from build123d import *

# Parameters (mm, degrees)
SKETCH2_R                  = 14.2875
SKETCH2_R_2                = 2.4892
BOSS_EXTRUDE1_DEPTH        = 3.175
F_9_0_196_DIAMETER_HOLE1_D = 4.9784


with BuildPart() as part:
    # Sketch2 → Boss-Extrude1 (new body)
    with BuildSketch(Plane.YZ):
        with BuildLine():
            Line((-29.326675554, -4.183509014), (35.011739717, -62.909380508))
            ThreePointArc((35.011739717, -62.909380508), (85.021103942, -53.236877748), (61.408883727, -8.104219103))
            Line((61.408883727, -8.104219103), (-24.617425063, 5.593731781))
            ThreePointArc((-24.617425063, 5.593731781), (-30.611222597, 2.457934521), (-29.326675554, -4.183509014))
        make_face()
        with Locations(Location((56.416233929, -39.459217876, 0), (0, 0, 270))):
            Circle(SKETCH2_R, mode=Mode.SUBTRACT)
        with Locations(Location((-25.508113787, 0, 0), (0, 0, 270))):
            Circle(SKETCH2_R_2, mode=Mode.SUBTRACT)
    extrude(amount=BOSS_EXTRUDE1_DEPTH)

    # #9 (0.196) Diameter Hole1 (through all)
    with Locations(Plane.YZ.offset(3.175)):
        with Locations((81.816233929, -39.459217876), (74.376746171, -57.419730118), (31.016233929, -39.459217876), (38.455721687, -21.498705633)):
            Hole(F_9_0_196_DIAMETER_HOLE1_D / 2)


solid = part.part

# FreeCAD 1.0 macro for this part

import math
import FreeCAD as App
import Part
import Sketcher

V = App.Vector
Q = App.Units.Quantity

doc = App.newDocument("Part")
params = doc.addObject("Spreadsheet::Sheet", "Params")
for row, (alias, value) in enumerate([
    ("sketch1_radius", "1.25 in"),
    ("sketch1_diameter", "1.125 in"),
    ("sketch1_diameter2", "0.196 in"),
    ("sketch1_radius2", "0.223 in"),
    ("pad1_length", "0.125 in"),
    ("sketch2_diameter", "0.196 in"),
    ("hole_diameter", "0.196 in"),
], start=1):
    params.set(f"A{row}", alias)
    params.set(f"B{row}", "=" + value)
    params.setAlias(f"B{row}", alias)

body = doc.addObject("PartDesign::Body", "Body")

sketch1 = doc.addObject("Sketcher::SketchObject", "Sketch")
body.addObject(sketch1)
sketch1.AttachmentSupport = (doc.YZ_Plane, [""])
sketch1.MapMode = "FlatFace"
sketch1.addGeometry([
    Part.LineSegment(V(-29.3, -4.2, 0), V(35, -62.9, 0)),
    Part.ArcOfCircle(Part.Circle(V(56.4, -39.5, 0), V(0, 0, 1), 31.8), math.radians(-132), math.radians(81)),
    Part.LineSegment(V(61.4, -8.1, 0), V(-24.6, 5.6, 0)),
    Part.ArcOfCircle(Part.Circle(V(-25.5, 0, 0), V(0, 0, 1), 5.7), math.radians(81), math.radians(228)),
    Part.Circle(V(56.4, -39.5, 0), V(0, 0, 1), 14.3),
    Part.Circle(V(-25.5, 0, 0), V(0, 0, 1), 2.5),
], False)
sketch1.addConstraint([
    Sketcher.Constraint("Tangent", 0, 2, 1, 1),
    Sketcher.Constraint("Tangent", 1, 2, 2, 1),
    Sketcher.Constraint("Tangent", 2, 2, 3, 1),
    Sketcher.Constraint("Tangent", 3, 2, 0, 1),
    Sketcher.Constraint("Coincident", 4, 3, 1, 3),
    Sketcher.Constraint("Coincident", 5, 3, 3, 3),
    Sketcher.Constraint("PointOnObject", 3, 3, -1),
    Sketcher.Constraint("Radius", 1, Q("1.25 in")),
    Sketcher.Constraint("Diameter", 4, Q("1.125 in")),
    Sketcher.Constraint("Diameter", 5, Q("0.196 in")),
    Sketcher.Constraint("Radius", 3, Q("0.223 in")),
    Sketcher.Constraint("DistanceY", 1, 3, 1, 2, Q("31.354999 mm")),
    Sketcher.Constraint("DistanceX", -1, 1, 0, 2, Q("35.01174 mm")),
    Sketcher.Constraint("DistanceY", 0, 2, -1, 1, Q("62.909381 mm")),
])
sketch1.setExpression("Constraints[7]", "Params.sketch1_radius")
sketch1.setExpression("Constraints[8]", "Params.sketch1_diameter")
sketch1.setExpression("Constraints[9]", "Params.sketch1_diameter2")
sketch1.setExpression("Constraints[10]", "Params.sketch1_radius2")
pad1 = doc.addObject("PartDesign::Pad", "Pad")
body.addObject(pad1)
pad1.Profile = sketch1
pad1.setExpression("Length", "Params.pad1_length")

sketch2 = doc.addObject("Sketcher::SketchObject", "Sketch001")
body.addObject(sketch2)
sketch2.AttachmentSupport = (doc.YZ_Plane, [""])
sketch2.MapMode = "FlatFace"
sketch2.AttachmentOffset = App.Placement(V(0, 0, 0.125 * 25.4), App.Rotation())
sketch2.addGeometry([
    Part.Circle(V(81.8, -39.5, 0), V(0, 0, 1), 2.5),
    Part.Circle(V(74.4, -57.4, 0), V(0, 0, 1), 2.5),
    Part.Circle(V(31, -39.5, 0), V(0, 0, 1), 2.5),
    Part.Circle(V(38.5, -21.5, 0), V(0, 0, 1), 2.5),
], False)
sketch2.addConstraint([
    Sketcher.Constraint("Equal", 0, 1),
    Sketcher.Constraint("Equal", 1, 2),
    Sketcher.Constraint("Equal", 2, 3),
    Sketcher.Constraint("Horizontal", 0, 3, 2, 3),
    Sketcher.Constraint("Diameter", 0, Q("0.196 in")),
    Sketcher.Constraint("DistanceX", 2, 3, 0, 3, Q("2 in")),
    Sketcher.Constraint("DistanceY", 1, 3, -1, 1, Q("57.41973 mm")),
    Sketcher.Constraint("DistanceX", -1, 1, 3, 3, Q("38.455722 mm")),
    Sketcher.Constraint("DistanceX", -1, 1, 0, 3, Q("81.816234 mm")),
    Sketcher.Constraint("DistanceY", 0, 3, -1, 1, Q("39.459218 mm")),
    Sketcher.Constraint("DistanceX", -1, 1, 1, 3, Q("74.376746 mm")),
    Sketcher.Constraint("DistanceY", 3, 3, -1, 1, Q("21.498706 mm")),
])
sketch2.setExpression("Constraints[4]", "Params.sketch2_diameter")
doc.recompute()
hole = doc.addObject("PartDesign::Hole", "Hole")
body.addObject(hole)
hole.Profile = sketch2
hole.ThreadType = "None"
hole.setExpression("Diameter", "Params.hole_diameter")
hole.DepthType = "ThroughAll"

doc.recompute()
